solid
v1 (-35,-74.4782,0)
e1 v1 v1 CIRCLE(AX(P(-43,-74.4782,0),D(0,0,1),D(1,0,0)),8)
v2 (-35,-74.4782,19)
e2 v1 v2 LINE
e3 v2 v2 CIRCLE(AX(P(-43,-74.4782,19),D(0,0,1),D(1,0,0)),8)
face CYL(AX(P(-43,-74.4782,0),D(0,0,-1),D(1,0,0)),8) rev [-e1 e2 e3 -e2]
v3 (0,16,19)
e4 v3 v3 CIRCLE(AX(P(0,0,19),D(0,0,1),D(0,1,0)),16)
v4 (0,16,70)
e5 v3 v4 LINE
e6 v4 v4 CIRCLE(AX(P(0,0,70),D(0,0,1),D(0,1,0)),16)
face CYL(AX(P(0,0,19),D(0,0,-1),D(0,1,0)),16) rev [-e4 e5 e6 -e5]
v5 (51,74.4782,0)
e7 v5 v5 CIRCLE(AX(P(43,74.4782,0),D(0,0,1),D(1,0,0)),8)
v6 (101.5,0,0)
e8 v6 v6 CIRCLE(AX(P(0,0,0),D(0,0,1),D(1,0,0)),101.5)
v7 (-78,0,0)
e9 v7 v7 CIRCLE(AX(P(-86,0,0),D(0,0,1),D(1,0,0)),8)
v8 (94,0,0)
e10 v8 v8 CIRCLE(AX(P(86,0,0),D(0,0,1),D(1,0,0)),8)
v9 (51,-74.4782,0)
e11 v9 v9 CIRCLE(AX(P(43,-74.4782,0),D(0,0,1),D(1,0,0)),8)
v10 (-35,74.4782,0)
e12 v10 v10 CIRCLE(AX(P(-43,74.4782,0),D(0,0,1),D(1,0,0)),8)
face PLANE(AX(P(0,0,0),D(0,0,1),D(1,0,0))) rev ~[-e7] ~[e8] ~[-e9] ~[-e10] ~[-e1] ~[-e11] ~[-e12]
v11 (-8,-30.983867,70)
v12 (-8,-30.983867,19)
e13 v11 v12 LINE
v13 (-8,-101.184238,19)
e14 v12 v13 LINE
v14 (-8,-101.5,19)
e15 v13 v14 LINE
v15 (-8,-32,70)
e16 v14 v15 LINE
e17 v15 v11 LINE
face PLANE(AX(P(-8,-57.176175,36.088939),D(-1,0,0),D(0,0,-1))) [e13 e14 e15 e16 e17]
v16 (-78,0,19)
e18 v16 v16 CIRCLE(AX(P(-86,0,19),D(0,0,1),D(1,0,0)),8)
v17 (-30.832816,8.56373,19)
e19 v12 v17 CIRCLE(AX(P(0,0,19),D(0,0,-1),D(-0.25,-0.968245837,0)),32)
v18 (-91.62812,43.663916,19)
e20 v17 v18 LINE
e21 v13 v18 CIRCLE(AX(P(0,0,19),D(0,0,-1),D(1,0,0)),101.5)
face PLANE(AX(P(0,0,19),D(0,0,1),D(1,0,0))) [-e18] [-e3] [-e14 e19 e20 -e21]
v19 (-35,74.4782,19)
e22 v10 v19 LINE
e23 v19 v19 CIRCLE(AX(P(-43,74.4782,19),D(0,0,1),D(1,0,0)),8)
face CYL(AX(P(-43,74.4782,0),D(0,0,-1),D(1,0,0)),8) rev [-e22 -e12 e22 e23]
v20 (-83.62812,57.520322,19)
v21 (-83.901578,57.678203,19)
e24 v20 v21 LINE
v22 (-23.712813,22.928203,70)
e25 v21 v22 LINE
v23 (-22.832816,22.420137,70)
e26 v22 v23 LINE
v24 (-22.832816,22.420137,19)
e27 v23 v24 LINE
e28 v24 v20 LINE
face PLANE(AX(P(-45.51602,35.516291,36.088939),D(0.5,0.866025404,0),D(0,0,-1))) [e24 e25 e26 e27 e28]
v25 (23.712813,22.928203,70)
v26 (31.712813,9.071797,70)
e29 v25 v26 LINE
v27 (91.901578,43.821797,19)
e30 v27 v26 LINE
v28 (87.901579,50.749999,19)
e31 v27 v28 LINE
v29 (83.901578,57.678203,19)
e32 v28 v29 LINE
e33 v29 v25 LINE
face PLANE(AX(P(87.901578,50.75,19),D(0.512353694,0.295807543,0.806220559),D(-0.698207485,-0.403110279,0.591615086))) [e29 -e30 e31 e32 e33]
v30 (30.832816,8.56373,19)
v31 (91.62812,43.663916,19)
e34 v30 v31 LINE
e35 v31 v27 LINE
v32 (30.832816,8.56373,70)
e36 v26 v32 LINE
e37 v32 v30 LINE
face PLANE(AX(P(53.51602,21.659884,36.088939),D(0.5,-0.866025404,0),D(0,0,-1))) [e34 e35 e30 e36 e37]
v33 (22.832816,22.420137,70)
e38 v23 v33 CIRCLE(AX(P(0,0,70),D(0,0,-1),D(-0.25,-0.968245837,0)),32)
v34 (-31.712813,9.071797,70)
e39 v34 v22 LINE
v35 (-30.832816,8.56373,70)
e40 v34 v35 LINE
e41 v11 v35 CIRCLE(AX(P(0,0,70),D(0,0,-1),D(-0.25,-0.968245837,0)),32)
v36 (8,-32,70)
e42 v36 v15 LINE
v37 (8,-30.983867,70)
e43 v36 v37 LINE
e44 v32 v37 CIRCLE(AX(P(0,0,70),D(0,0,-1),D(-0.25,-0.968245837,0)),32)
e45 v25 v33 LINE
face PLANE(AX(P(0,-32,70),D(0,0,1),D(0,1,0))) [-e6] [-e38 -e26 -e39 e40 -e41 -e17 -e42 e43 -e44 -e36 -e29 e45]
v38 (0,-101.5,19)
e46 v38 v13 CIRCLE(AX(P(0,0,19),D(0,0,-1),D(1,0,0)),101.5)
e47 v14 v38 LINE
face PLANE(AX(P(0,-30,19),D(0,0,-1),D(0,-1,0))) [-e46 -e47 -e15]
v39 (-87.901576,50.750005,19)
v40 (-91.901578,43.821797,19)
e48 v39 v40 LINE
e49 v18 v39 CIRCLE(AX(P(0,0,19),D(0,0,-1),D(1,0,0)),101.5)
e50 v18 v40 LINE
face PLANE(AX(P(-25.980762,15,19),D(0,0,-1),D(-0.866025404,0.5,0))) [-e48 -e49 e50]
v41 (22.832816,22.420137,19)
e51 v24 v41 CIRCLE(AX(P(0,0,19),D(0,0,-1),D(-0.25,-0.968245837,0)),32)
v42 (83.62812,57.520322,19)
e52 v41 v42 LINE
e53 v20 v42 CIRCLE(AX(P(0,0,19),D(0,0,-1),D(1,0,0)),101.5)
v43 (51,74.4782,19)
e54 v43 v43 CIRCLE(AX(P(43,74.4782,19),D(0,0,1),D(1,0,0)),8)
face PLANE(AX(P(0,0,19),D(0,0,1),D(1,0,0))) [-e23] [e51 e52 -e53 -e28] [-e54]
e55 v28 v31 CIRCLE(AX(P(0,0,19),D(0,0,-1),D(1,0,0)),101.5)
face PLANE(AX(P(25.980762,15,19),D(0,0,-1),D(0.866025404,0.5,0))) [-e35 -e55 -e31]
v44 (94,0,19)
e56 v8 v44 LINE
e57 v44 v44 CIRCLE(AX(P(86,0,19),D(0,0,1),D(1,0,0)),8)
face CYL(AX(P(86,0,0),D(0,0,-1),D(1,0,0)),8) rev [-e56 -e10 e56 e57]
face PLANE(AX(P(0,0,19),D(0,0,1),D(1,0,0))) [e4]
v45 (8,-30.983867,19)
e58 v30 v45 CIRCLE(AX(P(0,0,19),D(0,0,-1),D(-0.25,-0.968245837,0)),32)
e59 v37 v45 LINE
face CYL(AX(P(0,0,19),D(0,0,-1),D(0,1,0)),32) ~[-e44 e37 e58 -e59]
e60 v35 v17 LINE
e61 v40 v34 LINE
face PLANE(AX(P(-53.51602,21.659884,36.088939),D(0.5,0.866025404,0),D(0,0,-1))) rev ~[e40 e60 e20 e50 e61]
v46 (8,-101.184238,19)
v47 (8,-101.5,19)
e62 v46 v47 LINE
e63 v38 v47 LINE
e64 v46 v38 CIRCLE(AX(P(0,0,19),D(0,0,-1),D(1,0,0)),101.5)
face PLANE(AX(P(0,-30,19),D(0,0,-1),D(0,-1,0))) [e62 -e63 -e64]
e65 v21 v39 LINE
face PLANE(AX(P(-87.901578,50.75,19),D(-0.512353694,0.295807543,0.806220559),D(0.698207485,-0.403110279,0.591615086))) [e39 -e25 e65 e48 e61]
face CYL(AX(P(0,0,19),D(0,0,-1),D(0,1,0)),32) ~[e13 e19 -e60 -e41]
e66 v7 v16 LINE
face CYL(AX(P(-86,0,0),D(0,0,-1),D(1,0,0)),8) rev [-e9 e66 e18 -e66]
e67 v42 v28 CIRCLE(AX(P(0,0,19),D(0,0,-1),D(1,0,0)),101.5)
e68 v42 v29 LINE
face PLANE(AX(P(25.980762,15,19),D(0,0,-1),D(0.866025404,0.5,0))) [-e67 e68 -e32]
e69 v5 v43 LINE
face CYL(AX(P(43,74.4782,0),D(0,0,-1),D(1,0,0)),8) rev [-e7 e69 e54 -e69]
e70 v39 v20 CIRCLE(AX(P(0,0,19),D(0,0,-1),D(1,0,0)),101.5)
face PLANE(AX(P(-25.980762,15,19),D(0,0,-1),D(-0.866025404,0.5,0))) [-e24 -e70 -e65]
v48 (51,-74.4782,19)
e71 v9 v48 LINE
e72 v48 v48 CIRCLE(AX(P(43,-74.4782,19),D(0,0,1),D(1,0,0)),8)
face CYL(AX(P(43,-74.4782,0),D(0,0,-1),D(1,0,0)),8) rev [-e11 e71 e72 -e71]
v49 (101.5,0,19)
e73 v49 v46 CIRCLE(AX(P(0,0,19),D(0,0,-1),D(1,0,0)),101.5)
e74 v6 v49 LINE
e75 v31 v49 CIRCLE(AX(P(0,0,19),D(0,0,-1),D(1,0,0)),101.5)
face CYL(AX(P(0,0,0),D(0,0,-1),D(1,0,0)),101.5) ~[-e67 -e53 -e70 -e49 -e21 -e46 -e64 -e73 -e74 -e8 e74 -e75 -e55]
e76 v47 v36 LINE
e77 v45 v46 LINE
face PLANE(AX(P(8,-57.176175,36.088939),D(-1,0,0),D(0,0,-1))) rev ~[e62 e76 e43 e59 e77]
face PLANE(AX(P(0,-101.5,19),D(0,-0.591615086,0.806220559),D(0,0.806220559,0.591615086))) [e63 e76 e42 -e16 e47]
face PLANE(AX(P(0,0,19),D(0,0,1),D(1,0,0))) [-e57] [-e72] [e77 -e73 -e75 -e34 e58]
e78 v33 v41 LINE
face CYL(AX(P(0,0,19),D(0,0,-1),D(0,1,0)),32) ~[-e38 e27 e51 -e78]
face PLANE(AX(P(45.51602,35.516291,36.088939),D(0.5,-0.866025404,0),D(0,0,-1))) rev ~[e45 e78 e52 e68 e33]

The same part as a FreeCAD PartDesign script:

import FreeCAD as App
import Part
import Sketcher

V = App.Vector
Q = App.Units.Quantity


def add_polygon(sketch, points):
    """Adds a closed chain of lines whose ends are joined by coincident constraints."""
    first, n = sketch.GeometryCount, len(points)
    for a, b in zip(points, points[1:] + points[:1]):
        sketch.addGeometry(Part.LineSegment(App.Vector(*a, 0), App.Vector(*b, 0)), False)
    for i in range(n):
        sketch.addConstraint(Sketcher.Constraint("Coincident", first + i, 2, first + (i + 1) % n, 1))

doc = App.newDocument("Part")
body = doc.addObject("PartDesign::Body", "Body")

# Sketch on XY plane
sketch1 = body.newObject("Sketcher::SketchObject", "Sketch")
sketch1.AttachmentSupport = (doc.getObject("XY_Plane"), [""])
sketch1.MapMode = "FlatFace"
sketch1.addGeometry([
    Part.Circle(V(0, 0, 0), V(0, 0, 1), 102),  # 0
    Part.Circle(V(-43, -74, 0), V(0, 0, 1), 8),  # 1
    Part.Circle(V(43, -74, 0), V(0, 0, 1), 8),  # 2
    Part.Circle(V(-86, 0, 0), V(0, 0, 1), 8),  # 3
    Part.Circle(V(-43, 74, 0), V(0, 0, 1), 8),  # 4
    Part.Circle(V(86, 0, 0), V(0, 0, 1), 8),  # 5
    Part.Circle(V(43, 74, 0), V(0, 0, 1), 8),  # 6
], False)
sketch1.addConstraint([
    Sketcher.Constraint("Coincident", 0, 3, -1, 1),
    Sketcher.Constraint("Equal", 1, 2),
    Sketcher.Constraint("Equal", 2, 3),
    Sketcher.Constraint("Equal", 3, 4),
    Sketcher.Constraint("Equal", 4, 5),
    Sketcher.Constraint("Equal", 5, 6),
    Sketcher.Constraint("Symmetric", 2, 3, 4, 3, -1, 1),
    Sketcher.Constraint("Symmetric", 3, 3, 5, 3, -1, 1),
    Sketcher.Constraint("Symmetric", 1, 3, 6, 3, -1, 1),
    Sketcher.Constraint("Symmetric", 1, 3, 2, 3, -2),
    Sketcher.Constraint("PointOnObject", 3, 3, -1),
    Sketcher.Constraint("Diameter", 0, Q("203 mm")),
    Sketcher.Constraint("Diameter", 1, Q("16 mm")),
    Sketcher.Constraint("DistanceX", 1, 3, -1, 1, Q("43 mm")),
    Sketcher.Constraint("DistanceX", 3, 3, -1, 1, Q("86 mm")),
    Sketcher.Constraint("DistanceY", 1, 3, -1, 1, Q("74.4782 mm")),
])
pad1 = body.newObject("PartDesign::Pad", "Pad")
pad1.Profile = sketch1
pad1.Length = 19

# Sketch on XY plane
sketch2 = body.newObject("Sketcher::SketchObject", "Sketch001")
sketch2.AttachmentSupport = (doc.getObject("XY_Plane"), [""])
sketch2.MapMode = "FlatFace"
sketch2.AttachmentOffset = App.Placement(V(0, 0, 19), App.Rotation())
sketch2.addGeometry([
    Part.Circle(V(0, 0, 0), V(0, 0, 1), 32),
    Part.Circle(V(0, 0, 0), V(0, 0, 1), 16),
], False)
sketch2.addConstraint([
    Sketcher.Constraint("Coincident", 0, 3, -1, 1),
    Sketcher.Constraint("Coincident", 1, 3, -1, 1),
    Sketcher.Constraint("Diameter", 0, Q("64 mm")),
    Sketcher.Constraint("Diameter", 1, Q("32 mm")),
])
pad2 = body.newObject("PartDesign::Pad", "Pad001")
pad2.Profile = sketch2
pad2.Length = 51

# Sketch on YZ plane
sketch3 = body.newObject("Sketcher::SketchObject", "Sketch002")
sketch3.AttachmentSupport = (doc.getObject("YZ_Plane"), [""])
sketch3.MapMode = "FlatFace"
add_polygon(sketch3, [(-32, 70), (-101.5, 19), (-30, 19), (-30, 70)])  # lines 0-3
sketch3.addConstraint([
    Sketcher.Constraint("Horizontal", 1),
    Sketcher.Constraint("Vertical", 2),
    Sketcher.Constraint("Horizontal", 3),
    Sketcher.Constraint("DistanceX", 3, 2, 3, 1, Q("2 mm")),
    Sketcher.Constraint("DistanceY", 2, 1, 2, 2, Q("51 mm")),
    Sketcher.Constraint("DistanceX", 1, 1, 1, 2, Q("71.5 mm")),
    Sketcher.Constraint("DistanceY", -1, 1, 0, 2, Q("19 mm")),
    Sketcher.Constraint("DistanceX", 1, 2, -1, 1, Q("30 mm")),
])
pocket1 = body.newObject("PartDesign::Pocket", "Pocket")
pocket1.Profile = sketch3
pocket1.Length = 16
pocket1.Midplane = True

# Sketch on YZ plane
sketch4 = body.newObject("Sketcher::SketchObject", "Sketch003")
sketch4.AttachmentSupport = (doc.getObject("YZ_Plane"), [""])
sketch4.MapMode = "FlatFace"
add_polygon(sketch4, [(-32, 70), (-101.5, 19), (-30, 19), (-30, 70)])  # lines 0-3
sketch4.addConstraint([
    Sketcher.Constraint("Horizontal", 1),
    Sketcher.Constraint("Vertical", 2),
    Sketcher.Constraint("Horizontal", 3),
    Sketcher.Constraint("DistanceX", 3, 2, 3, 1, Q("2 mm")),
    Sketcher.Constraint("DistanceY", 2, 1, 2, 2, Q("51 mm")),
    Sketcher.Constraint("DistanceX", 1, 1, 1, 2, Q("71.5 mm")),
    Sketcher.Constraint("DistanceY", -1, 1, 0, 2, Q("19 mm")),
    Sketcher.Constraint("DistanceX", 1, 2, -1, 1, Q("30 mm")),
])
pad3 = body.newObject("PartDesign::Pad", "Pad002")
pad3.Profile = sketch4
pad3.Length = 16
pad3.Midplane = True
doc.recompute()

polarpattern = body.newObject("PartDesign::PolarPattern", "PolarPattern")
polarpattern.Originals = [pad3]
polarpattern.Axis = (doc.getObject("Z_Axis"), [""])
polarpattern.Angle = 360
polarpattern.Occurrences = 3
body.Tip = polarpattern

doc.recompute()
